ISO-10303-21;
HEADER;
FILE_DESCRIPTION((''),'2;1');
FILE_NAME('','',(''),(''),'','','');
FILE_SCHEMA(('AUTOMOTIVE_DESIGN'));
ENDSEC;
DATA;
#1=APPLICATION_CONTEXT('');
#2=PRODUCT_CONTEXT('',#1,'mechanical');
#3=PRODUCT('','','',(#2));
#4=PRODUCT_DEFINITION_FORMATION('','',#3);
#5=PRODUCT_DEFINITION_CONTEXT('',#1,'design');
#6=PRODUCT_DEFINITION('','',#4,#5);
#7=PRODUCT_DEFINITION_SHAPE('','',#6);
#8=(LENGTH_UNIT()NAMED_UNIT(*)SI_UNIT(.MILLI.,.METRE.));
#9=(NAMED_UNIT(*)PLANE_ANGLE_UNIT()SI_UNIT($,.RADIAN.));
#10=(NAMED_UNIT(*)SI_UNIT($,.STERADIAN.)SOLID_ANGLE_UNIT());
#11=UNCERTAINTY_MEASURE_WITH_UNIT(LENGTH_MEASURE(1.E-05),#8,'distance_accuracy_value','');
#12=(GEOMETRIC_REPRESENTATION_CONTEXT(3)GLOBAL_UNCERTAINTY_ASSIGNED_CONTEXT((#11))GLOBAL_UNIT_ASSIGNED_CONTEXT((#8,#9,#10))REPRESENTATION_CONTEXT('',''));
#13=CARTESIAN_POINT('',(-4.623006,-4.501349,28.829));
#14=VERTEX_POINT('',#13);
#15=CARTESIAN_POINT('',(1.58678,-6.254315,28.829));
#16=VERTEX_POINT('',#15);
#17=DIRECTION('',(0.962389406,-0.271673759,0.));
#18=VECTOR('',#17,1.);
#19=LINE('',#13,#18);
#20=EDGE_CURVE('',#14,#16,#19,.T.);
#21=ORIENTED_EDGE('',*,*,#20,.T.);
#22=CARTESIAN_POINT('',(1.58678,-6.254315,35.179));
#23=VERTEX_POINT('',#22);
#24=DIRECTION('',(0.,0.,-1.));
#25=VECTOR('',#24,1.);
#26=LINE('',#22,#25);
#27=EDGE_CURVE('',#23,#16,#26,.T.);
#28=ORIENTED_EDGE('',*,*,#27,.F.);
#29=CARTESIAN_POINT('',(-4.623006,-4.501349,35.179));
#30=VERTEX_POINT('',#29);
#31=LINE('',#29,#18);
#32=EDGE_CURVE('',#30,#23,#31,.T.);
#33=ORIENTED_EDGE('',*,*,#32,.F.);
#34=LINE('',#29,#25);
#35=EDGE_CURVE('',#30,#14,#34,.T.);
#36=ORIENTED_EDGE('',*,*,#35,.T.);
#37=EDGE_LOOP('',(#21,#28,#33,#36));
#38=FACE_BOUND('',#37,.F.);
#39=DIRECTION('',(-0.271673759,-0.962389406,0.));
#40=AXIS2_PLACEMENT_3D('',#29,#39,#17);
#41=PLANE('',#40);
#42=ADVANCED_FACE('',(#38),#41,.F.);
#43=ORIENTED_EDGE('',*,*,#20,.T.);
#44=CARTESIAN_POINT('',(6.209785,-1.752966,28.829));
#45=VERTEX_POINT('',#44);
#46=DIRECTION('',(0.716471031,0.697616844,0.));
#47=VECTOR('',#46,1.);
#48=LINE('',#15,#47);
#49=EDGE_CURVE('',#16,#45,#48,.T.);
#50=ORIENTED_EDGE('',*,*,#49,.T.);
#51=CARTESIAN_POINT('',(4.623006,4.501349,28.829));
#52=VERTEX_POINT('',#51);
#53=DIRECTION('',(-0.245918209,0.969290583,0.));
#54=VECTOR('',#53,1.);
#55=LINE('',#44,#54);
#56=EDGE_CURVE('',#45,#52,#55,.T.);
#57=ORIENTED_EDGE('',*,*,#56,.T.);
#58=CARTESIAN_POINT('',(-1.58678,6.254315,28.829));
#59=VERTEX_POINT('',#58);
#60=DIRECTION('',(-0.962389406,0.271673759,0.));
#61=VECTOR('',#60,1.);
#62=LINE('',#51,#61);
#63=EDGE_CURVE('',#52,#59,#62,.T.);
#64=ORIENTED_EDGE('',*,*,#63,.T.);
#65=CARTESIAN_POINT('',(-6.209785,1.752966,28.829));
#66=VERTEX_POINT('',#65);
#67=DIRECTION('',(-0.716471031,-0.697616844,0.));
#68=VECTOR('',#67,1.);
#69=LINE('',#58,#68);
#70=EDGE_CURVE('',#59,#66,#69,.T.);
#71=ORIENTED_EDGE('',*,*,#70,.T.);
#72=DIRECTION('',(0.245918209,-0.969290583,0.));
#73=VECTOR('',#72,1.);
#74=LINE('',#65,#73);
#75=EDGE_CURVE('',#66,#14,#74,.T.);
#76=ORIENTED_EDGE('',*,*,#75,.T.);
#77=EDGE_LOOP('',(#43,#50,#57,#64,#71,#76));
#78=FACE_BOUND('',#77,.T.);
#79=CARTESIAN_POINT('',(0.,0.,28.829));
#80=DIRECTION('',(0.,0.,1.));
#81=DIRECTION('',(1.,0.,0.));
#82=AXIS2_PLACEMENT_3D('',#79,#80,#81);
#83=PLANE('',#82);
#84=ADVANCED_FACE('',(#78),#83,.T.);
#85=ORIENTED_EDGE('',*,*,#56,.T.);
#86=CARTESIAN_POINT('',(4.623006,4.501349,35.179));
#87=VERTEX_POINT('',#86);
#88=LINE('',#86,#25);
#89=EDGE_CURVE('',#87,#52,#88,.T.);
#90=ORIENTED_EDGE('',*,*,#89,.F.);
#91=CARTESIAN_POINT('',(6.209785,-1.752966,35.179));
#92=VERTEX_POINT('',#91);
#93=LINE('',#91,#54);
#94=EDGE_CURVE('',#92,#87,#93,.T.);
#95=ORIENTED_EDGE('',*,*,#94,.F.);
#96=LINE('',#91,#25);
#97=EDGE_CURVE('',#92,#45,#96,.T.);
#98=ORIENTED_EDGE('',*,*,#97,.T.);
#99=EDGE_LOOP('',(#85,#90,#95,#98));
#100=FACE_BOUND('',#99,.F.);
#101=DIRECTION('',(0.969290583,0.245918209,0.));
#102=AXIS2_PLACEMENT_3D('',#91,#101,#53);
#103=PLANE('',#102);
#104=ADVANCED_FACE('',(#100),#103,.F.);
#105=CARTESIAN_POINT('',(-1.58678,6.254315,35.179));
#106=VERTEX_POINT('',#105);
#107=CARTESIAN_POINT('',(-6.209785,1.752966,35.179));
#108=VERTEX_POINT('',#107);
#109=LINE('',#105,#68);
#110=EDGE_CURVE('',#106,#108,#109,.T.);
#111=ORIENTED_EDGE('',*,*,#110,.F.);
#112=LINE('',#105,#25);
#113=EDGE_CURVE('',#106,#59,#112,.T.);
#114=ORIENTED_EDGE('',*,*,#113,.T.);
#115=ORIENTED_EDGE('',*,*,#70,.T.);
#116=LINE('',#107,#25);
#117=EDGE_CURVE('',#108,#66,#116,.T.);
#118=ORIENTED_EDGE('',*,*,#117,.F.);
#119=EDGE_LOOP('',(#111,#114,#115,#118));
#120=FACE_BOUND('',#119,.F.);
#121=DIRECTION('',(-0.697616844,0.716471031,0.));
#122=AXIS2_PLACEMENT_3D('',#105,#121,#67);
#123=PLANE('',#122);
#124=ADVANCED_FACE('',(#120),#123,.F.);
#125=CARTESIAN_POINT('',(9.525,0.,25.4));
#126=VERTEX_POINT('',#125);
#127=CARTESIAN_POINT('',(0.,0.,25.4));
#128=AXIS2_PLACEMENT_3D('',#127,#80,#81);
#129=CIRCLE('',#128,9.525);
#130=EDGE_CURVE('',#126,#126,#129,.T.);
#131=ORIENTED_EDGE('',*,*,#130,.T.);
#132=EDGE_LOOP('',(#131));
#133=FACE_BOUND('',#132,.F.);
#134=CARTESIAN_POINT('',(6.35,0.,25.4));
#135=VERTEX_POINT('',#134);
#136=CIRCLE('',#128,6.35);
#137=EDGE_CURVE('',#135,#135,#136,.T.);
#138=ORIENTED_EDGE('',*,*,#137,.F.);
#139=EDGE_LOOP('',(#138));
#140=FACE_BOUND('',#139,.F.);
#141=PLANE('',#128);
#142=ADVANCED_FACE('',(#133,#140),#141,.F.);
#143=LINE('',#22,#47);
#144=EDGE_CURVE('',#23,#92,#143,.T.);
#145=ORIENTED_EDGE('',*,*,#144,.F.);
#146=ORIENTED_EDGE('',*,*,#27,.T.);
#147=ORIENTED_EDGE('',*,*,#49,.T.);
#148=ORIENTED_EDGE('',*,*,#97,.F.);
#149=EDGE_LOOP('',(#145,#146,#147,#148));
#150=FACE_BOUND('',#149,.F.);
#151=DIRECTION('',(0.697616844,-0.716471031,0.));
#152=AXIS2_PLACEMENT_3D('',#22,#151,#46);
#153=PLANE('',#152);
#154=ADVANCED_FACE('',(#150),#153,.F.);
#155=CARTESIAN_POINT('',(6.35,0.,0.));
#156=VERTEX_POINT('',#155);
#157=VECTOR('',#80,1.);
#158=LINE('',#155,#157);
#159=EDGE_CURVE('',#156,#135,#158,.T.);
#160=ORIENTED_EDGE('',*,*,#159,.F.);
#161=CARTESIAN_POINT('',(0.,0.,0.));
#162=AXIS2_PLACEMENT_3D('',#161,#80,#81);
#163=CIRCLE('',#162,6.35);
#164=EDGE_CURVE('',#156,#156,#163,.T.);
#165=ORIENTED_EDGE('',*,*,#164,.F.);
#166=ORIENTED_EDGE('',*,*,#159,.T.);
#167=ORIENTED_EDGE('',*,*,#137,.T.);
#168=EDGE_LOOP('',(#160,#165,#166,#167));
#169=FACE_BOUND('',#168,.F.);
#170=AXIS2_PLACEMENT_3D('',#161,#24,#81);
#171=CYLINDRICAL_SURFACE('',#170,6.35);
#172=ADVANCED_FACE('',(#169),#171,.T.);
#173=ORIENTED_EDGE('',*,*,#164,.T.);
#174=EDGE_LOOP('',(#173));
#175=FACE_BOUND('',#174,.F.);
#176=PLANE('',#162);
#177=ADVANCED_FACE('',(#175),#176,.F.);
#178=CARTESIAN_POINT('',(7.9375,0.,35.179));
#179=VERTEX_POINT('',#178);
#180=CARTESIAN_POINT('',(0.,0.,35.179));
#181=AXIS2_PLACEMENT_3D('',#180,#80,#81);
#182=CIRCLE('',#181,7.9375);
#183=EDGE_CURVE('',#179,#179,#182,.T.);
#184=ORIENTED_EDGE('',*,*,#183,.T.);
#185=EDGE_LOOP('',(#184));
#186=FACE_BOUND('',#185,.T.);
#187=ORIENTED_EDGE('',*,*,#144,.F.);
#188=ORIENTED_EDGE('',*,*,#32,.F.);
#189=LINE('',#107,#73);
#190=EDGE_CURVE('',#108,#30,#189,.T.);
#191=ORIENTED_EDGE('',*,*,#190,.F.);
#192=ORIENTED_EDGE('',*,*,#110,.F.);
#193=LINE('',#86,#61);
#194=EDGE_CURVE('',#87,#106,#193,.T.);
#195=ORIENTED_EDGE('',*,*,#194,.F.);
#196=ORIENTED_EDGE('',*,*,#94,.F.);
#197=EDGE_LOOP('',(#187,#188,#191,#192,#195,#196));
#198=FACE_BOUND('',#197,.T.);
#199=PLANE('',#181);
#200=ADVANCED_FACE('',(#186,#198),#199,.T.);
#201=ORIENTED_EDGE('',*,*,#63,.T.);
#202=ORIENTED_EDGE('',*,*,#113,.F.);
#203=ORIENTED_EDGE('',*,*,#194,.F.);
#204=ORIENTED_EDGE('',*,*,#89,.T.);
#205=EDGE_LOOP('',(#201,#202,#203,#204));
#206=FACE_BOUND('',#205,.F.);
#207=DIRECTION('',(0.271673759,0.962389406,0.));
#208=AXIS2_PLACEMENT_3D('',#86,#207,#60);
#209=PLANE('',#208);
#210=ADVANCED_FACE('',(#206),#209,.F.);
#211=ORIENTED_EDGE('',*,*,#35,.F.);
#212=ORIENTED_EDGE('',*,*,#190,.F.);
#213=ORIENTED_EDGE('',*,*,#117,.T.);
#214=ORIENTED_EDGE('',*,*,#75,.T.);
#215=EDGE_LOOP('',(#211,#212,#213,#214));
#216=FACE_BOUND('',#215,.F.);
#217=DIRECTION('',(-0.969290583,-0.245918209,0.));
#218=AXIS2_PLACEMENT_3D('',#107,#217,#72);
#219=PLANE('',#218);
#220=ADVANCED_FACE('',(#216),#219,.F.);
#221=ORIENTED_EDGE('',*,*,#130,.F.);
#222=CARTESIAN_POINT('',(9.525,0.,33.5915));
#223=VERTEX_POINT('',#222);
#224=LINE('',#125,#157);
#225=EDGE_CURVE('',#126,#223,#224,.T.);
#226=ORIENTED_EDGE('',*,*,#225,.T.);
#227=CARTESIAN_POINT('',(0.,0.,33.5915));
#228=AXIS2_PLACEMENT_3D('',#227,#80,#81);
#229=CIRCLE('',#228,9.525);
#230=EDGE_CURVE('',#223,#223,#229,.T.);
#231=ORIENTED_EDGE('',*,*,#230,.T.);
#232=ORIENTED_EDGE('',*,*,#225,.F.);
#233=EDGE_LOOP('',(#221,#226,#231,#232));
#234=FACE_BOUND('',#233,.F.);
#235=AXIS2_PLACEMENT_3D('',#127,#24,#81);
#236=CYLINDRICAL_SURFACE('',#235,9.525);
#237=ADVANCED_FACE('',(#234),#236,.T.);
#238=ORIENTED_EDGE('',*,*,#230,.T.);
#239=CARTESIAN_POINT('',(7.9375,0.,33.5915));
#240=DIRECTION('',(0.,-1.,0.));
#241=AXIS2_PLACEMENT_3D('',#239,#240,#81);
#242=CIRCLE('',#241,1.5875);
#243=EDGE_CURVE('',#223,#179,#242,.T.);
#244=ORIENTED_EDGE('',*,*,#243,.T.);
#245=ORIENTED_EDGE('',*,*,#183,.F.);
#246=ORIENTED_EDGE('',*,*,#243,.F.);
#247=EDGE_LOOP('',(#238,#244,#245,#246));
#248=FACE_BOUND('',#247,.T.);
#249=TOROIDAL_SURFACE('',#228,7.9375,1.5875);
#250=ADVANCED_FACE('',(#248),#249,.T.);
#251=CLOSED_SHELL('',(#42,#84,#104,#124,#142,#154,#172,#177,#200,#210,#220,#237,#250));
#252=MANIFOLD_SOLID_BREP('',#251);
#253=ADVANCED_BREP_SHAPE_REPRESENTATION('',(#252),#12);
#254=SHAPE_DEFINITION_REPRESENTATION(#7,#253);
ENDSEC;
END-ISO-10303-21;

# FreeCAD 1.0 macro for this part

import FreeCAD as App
import Part
import Sketcher

V = App.Vector
Q = App.Units.Quantity


def edges_at(feature, points):
    """Names of the edges that pass closest to the given points."""
    edges = feature.Shape.Edges
    near = lambda p: min(range(len(edges)), key=lambda i: edges[i].distToShape(Part.Vertex(*p))[0])
    return sorted({f"Edge{near(p) + 1}" for p in points})

doc = App.newDocument("Part")
body = doc.addObject("PartDesign::Body", "Body")

# Sketch on XY plane
sketch1 = body.newObject("Sketcher::SketchObject", "Sketch")
sketch1.AttachmentSupport = (doc.getObject("XY_Plane"), [""])
sketch1.MapMode = "FlatFace"
sketch1.addGeometry(Part.Circle(V(0, 0, 0), V(0, 0, 1), 6), False)
sketch1.addConstraint([
    Sketcher.Constraint("Coincident", 0, 3, -1, 1),
    Sketcher.Constraint("Diameter", 0, Q("0.5 in")),
])
pad1 = body.newObject("PartDesign::Pad", "Pad")
pad1.Profile = sketch1
pad1.Length = Q("1 in")

# Sketch on XY plane
sketch2 = body.newObject("Sketcher::SketchObject", "Sketch001")
sketch2.AttachmentSupport = (doc.getObject("XY_Plane"), [""])
sketch2.MapMode = "FlatFace"
sketch2.AttachmentOffset = App.Placement(V(0, 0, 1 * 25.4), App.Rotation())
sketch2.addGeometry(Part.Circle(V(0, 0, 0), V(0, 0, 1), 10), False)
sketch2.addConstraint([
    Sketcher.Constraint("Coincident", 0, 3, -1, 1),
    Sketcher.Constraint("Diameter", 0, Q("0.75 in")),
])
pad2 = body.newObject("PartDesign::Pad", "Pad001")
pad2.Profile = sketch2
pad2.Length = Q("0.385 in")
doc.recompute()

fillet = body.newObject("PartDesign::Fillet", "Fillet")
fillet.Base = (pad2, edges_at(pad2, [(-9.525, 0, 35.179)]))
fillet.Radius = Q("0.0625 in")

# Sketch on XY plane
sketch3 = body.newObject("Sketcher::SketchObject", "Sketch002")
sketch3.AttachmentSupport = (doc.getObject("XY_Plane"), [""])
sketch3.MapMode = "FlatFace"
sketch3.AttachmentOffset = App.Placement(V(0, 0, 1.385 * 25.4), App.Rotation())
sketch3.addGeometry([
    Part.LineSegment(V(2, -6, 0), V(6, -2, 0)),  # 0
    Part.LineSegment(V(6, -2, 0), V(5, 5, 0)),  # 1
    Part.LineSegment(V(5, 5, 0), V(-2, 6, 0)),  # 2
    Part.LineSegment(V(-2, 6, 0), V(-6, 2, 0)),  # 3
    Part.LineSegment(V(-6, 2, 0), V(-5, -5, 0)),  # 4
    Part.LineSegment(V(-5, -5, 0), V(2, -6, 0)),  # 5
], False)
sketch3.addConstraint([
    Sketcher.Constraint("Coincident", 0, 2, 1, 1),
    Sketcher.Constraint("Coincident", 1, 2, 2, 1),
    Sketcher.Constraint("Coincident", 2, 2, 3, 1),
    Sketcher.Constraint("Coincident", 3, 2, 4, 1),
    Sketcher.Constraint("Coincident", 4, 2, 5, 1),
    Sketcher.Constraint("Coincident", 5, 2, 0, 1),
    Sketcher.Constraint("Symmetric", 0, 2, 3, 2, -1, 1),
    Sketcher.Constraint("Symmetric", 1, 2, 4, 2, -1, 1),
    Sketcher.Constraint("Symmetric", 2, 2, 5, 2, -1, 1),
    Sketcher.Constraint("Equal", 0, 1),
    Sketcher.Constraint("Equal", 1, 2),
    Sketcher.Constraint("DistanceY", -1, 1, 1, 2, 4.501349),
    Sketcher.Constraint("DistanceX", 2, 2, -1, 1, 1.58678),
    Sketcher.Constraint("DistanceX", 1, 2, 0, 2, 1.586779),
    Sketcher.Constraint("DistanceY", 0, 2, 2, 2, 8.007281),
])
pocket1 = body.newObject("PartDesign::Pocket", "Pocket")
pocket1.Profile = sketch3
pocket1.Length = Q("0.25 in")
body2 = doc.addObject("PartDesign::Body", "Body001")

# Sketch on XY plane
sketch4 = body2.newObject("Sketcher::SketchObject", "Sketch003")
sketch4.AttachmentSupport = (doc.getObject("XY_Plane001"), [""])
sketch4.MapMode = "FlatFace"
sketch4.AttachmentOffset = App.Placement(V(0, 0, 1 * 25.4), App.Rotation())
sketch4.addGeometry(Part.Circle(V(0, 0, 0), V(0, 0, 1), 10), False)
sketch4.addConstraint([
    Sketcher.Constraint("Coincident", 0, 3, -1, 1),
    Sketcher.Constraint("Diameter", 0, Q("0.75 in")),
])
pad3 = body2.newObject("PartDesign::Pad", "Pad002")
pad3.Profile = sketch4
pad3.Length = Q("0.3875 in")
doc.recompute()

fillet2 = body2.newObject("PartDesign::Fillet", "Fillet001")
fillet2.Base = (pad3, edges_at(pad3, [(-9.525, 0, 35.242)]))
fillet2.Radius = Q("0.0625 in")

# Sketch on XY plane
sketch5 = body2.newObject("Sketcher::SketchObject", "Sketch004")
sketch5.AttachmentSupport = (doc.getObject("XY_Plane001"), [""])
sketch5.MapMode = "FlatFace"
sketch5.AttachmentOffset = App.Placement(V(0, 0, 1.3875 * 25.4), App.Rotation())
sketch5.addGeometry([
    Part.LineSegment(V(6, -2, 0), V(5, 4, 0)),  # 0
    Part.LineSegment(V(5, 4, 0), V(-1, 6, 0)),  # 1
    Part.LineSegment(V(-1, 6, 0), V(-6, 2, 0)),  # 2
    Part.LineSegment(V(-6, 2, 0), V(-5, -4, 0)),  # 3
    Part.LineSegment(V(-5, -4, 0), V(1, -6, 0)),  # 4
    Part.LineSegment(V(1, -6, 0), V(6, -2, 0)),  # 5
], False)
sketch5.addConstraint([
    Sketcher.Constraint("Coincident", 0, 2, 1, 1),
    Sketcher.Constraint("Coincident", 1, 2, 2, 1),
    Sketcher.Constraint("Coincident", 2, 2, 3, 1),
    Sketcher.Constraint("Coincident", 3, 2, 4, 1),
    Sketcher.Constraint("Coincident", 4, 2, 5, 1),
    Sketcher.Constraint("Coincident", 5, 2, 0, 1),
    Sketcher.Constraint("Symmetric", 0, 2, 3, 2, -1, 1),
    Sketcher.Constraint("Symmetric", 1, 2, 4, 2, -1, 1),
    Sketcher.Constraint("Symmetric", 2, 2, 5, 2, -1, 1),
    Sketcher.Constraint("Equal", 0, 1),
    Sketcher.Constraint("Equal", 1, 2),
    Sketcher.Constraint("Distance", 0, Q("0.25 in")),
    Sketcher.Constraint("DistanceY", 4, 2, 1, 2, 12.446302),
    Sketcher.Constraint("DistanceY", -1, 1, 0, 2, 4.205269),
    Sketcher.Constraint("DistanceX", 1, 2, -1, 1, 1.262889),
])
pocket2 = body2.newObject("PartDesign::Pocket", "Pocket001")
pocket2.Profile = sketch5
pocket2.Length = Q("0.25 in")
body2.Visibility = False

doc.recompute()
